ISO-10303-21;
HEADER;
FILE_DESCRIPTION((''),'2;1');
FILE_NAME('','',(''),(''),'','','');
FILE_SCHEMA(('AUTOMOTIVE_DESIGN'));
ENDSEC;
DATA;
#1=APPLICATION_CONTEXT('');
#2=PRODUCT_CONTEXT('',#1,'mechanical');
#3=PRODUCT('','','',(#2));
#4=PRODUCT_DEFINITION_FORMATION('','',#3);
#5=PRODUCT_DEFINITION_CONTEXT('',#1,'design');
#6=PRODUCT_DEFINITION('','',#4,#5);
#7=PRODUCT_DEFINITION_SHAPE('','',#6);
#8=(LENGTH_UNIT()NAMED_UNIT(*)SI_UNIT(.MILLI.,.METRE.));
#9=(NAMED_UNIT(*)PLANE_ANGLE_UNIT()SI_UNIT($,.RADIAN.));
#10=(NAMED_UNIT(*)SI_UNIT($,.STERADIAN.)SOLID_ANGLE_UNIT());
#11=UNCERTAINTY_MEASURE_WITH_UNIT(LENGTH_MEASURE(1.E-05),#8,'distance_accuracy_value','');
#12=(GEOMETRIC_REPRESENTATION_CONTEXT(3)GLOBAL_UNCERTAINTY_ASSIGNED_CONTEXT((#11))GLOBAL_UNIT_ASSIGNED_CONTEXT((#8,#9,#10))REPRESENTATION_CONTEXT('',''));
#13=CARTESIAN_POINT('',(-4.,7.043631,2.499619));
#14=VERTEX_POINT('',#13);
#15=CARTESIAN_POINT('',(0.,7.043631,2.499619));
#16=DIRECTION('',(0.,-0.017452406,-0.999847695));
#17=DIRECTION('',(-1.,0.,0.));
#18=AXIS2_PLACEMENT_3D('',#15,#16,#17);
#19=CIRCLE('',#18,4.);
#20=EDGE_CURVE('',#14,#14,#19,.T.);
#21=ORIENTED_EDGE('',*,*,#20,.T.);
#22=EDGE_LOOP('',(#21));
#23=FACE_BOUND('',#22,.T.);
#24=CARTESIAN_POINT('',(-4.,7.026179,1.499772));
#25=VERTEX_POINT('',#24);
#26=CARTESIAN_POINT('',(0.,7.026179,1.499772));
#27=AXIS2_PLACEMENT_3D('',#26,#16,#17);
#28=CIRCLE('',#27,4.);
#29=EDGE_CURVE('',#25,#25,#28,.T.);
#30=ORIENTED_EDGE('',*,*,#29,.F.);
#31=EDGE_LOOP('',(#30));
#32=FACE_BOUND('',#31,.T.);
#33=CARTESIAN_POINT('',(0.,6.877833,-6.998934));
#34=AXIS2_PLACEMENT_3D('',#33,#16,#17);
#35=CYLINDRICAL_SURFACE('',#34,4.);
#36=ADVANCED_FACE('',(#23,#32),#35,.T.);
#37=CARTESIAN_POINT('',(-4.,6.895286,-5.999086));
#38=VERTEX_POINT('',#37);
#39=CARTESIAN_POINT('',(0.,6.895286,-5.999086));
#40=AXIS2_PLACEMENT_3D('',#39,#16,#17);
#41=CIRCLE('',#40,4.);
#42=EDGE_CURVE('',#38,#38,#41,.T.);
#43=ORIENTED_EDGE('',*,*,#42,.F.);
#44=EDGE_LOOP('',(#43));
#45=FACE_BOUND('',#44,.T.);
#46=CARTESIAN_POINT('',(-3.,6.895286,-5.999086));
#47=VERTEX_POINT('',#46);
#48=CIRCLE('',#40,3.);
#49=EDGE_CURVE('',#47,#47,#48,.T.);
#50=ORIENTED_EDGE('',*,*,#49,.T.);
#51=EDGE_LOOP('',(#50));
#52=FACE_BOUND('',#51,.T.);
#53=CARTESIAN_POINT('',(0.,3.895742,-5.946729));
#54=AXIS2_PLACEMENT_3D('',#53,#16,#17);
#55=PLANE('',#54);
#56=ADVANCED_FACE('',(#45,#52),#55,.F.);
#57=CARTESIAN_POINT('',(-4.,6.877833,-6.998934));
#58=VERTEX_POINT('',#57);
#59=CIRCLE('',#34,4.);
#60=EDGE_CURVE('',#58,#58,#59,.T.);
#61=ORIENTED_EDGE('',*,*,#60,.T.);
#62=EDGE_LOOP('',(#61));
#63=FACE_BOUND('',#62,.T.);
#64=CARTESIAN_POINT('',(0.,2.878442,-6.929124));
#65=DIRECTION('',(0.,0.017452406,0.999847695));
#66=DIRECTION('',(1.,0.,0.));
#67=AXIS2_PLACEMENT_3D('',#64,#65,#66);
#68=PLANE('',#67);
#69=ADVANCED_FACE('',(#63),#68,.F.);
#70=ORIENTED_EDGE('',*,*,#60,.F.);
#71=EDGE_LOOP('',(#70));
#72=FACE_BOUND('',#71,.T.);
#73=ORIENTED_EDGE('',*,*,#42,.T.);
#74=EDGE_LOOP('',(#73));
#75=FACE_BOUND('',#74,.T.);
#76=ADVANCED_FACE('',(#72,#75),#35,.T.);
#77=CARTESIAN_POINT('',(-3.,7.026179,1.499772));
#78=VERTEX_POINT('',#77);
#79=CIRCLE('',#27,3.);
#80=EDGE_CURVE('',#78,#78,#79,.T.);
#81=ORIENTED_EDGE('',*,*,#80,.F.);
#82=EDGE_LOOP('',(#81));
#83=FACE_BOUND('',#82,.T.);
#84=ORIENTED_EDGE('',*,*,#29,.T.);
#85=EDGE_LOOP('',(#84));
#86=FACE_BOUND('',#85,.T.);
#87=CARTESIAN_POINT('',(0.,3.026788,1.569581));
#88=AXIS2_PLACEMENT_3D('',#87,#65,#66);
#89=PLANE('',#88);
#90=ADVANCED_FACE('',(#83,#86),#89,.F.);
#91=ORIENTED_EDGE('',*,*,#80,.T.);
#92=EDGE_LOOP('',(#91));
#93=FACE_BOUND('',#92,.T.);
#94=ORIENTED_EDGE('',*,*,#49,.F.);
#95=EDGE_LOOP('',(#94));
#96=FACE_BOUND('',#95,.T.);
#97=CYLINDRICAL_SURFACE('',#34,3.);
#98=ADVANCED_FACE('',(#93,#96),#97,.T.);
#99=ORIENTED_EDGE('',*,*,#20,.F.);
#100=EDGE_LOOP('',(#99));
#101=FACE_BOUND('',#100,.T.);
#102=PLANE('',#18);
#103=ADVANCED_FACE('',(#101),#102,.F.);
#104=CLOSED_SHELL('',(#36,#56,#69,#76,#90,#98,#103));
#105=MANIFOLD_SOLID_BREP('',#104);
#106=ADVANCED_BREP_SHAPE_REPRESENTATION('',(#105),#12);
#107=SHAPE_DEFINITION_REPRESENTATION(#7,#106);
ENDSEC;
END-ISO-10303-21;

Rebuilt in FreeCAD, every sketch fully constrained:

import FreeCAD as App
import Part
import Sketcher

V = App.Vector

doc = App.newDocument("Part")
params = doc.addObject("Spreadsheet::Sheet", "Params")
for row, (alias, value) in enumerate([
    ("sketch1_width", "4 mm"),
    ("sketch1_width2", "1 mm"),
    ("sketch1_height", "9.5 mm"),
    ("revolution_angle", "360 deg"),
], start=1):
    params.set(f"A{row}", alias)
    params.set(f"B{row}", "=" + value)
    params.setAlias(f"B{row}", alias)

body = doc.addObject("PartDesign::Body", "Body")

sketch1 = body.newObject("Sketcher::SketchObject", "Sketch")
sketch1.AttachmentSupport = (doc.getObject("XY_Plane"), [""])
sketch1.MapMode = "FlatFace"
sketch1.addGeometry(Part.LineSegment(V(0, 0, 0), V(0, 9.5, 0)), False)
sketch1.addGeometry(Part.LineSegment(V(0, 9.5, 0), V(-4, 9.5, 0)), False)
sketch1.addGeometry(Part.LineSegment(V(-4, 9.5, 0), V(-4, 8.5, 0)), False)
sketch1.addGeometry(Part.LineSegment(V(-4, 8.5, 0), V(-3, 8.5, 0)), False)
sketch1.addGeometry(Part.LineSegment(V(-3, 8.5, 0), V(-3, 1, 0)), False)
sketch1.addGeometry(Part.LineSegment(V(-3, 1, 0), V(-4, 1, 0)), False)
sketch1.addGeometry(Part.LineSegment(V(-4, 1, 0), V(-4, 0, 0)), False)
sketch1.addGeometry(Part.LineSegment(V(-4, 0, 0), V(0, 0, 0)), False)
sketch1.addConstraint(Sketcher.Constraint("Coincident", 0, 2, 1, 1))
sketch1.addConstraint(Sketcher.Constraint("Coincident", 1, 2, 2, 1))
sketch1.addConstraint(Sketcher.Constraint("Coincident", 2, 2, 3, 1))
sketch1.addConstraint(Sketcher.Constraint("Coincident", 3, 2, 4, 1))
sketch1.addConstraint(Sketcher.Constraint("Coincident", 4, 2, 5, 1))
sketch1.addConstraint(Sketcher.Constraint("Coincident", 5, 2, 6, 1))
sketch1.addConstraint(Sketcher.Constraint("Coincident", 6, 2, 7, 1))
sketch1.addConstraint(Sketcher.Constraint("Coincident", 7, 2, 0, 1))
sketch1.addConstraint(Sketcher.Constraint("Vertical", 0))
sketch1.addConstraint(Sketcher.Constraint("Horizontal", 1))
sketch1.addConstraint(Sketcher.Constraint("Vertical", 2))
sketch1.addConstraint(Sketcher.Constraint("Horizontal", 3))
sketch1.addConstraint(Sketcher.Constraint("Vertical", 4))
sketch1.addConstraint(Sketcher.Constraint("Horizontal", 5))
sketch1.addConstraint(Sketcher.Constraint("Vertical", 6))
sketch1.addConstraint(Sketcher.Constraint("Horizontal", 7))
sketch1.addConstraint(Sketcher.Constraint("Coincident", 7, 2, -1, 1))
sketch1.addConstraint(Sketcher.Constraint("Vertical", 2, 2, 5, 2))
sketch1.addConstraint(Sketcher.Constraint("Equal", 5, 2))
sketch1.addConstraint(Sketcher.Constraint("Equal", 2, 6))
sketch1.addConstraint(Sketcher.Constraint("DistanceX", 1, 2, 1, 1, 4.0))
sketch1.addConstraint(Sketcher.Constraint("DistanceX", 3, 1, 3, 2, 1.0))
sketch1.addConstraint(Sketcher.Constraint("DistanceY", 0, 1, 0, 2, 9.5))
sketch1.setExpression("Constraints[20]", "Params.sketch1_width")
sketch1.setExpression("Constraints[21]", "Params.sketch1_width2")
sketch1.setExpression("Constraints[22]", "Params.sketch1_height")
revolution = body.newObject("PartDesign::Revolution", "Revolution")
revolution.Profile = sketch1
revolution.ReferenceAxis = (sketch1, ["V_Axis"])
revolution.setExpression("Angle", "Params.revolution_angle")
body2 = doc.addObject("PartDesign::Body", "Body001")
doc.recompute()

body.Placement = App.Placement(V(0, 6.877833, -6.998934), App.Rotation(V(0.573961956, 0.58406793, 0.573961956), 119.424339))
boolean = body2.newObject("PartDesign::Boolean", "Boolean")
boolean.Type = "Fuse"
boolean.addObjects([body])

doc.recompute()
